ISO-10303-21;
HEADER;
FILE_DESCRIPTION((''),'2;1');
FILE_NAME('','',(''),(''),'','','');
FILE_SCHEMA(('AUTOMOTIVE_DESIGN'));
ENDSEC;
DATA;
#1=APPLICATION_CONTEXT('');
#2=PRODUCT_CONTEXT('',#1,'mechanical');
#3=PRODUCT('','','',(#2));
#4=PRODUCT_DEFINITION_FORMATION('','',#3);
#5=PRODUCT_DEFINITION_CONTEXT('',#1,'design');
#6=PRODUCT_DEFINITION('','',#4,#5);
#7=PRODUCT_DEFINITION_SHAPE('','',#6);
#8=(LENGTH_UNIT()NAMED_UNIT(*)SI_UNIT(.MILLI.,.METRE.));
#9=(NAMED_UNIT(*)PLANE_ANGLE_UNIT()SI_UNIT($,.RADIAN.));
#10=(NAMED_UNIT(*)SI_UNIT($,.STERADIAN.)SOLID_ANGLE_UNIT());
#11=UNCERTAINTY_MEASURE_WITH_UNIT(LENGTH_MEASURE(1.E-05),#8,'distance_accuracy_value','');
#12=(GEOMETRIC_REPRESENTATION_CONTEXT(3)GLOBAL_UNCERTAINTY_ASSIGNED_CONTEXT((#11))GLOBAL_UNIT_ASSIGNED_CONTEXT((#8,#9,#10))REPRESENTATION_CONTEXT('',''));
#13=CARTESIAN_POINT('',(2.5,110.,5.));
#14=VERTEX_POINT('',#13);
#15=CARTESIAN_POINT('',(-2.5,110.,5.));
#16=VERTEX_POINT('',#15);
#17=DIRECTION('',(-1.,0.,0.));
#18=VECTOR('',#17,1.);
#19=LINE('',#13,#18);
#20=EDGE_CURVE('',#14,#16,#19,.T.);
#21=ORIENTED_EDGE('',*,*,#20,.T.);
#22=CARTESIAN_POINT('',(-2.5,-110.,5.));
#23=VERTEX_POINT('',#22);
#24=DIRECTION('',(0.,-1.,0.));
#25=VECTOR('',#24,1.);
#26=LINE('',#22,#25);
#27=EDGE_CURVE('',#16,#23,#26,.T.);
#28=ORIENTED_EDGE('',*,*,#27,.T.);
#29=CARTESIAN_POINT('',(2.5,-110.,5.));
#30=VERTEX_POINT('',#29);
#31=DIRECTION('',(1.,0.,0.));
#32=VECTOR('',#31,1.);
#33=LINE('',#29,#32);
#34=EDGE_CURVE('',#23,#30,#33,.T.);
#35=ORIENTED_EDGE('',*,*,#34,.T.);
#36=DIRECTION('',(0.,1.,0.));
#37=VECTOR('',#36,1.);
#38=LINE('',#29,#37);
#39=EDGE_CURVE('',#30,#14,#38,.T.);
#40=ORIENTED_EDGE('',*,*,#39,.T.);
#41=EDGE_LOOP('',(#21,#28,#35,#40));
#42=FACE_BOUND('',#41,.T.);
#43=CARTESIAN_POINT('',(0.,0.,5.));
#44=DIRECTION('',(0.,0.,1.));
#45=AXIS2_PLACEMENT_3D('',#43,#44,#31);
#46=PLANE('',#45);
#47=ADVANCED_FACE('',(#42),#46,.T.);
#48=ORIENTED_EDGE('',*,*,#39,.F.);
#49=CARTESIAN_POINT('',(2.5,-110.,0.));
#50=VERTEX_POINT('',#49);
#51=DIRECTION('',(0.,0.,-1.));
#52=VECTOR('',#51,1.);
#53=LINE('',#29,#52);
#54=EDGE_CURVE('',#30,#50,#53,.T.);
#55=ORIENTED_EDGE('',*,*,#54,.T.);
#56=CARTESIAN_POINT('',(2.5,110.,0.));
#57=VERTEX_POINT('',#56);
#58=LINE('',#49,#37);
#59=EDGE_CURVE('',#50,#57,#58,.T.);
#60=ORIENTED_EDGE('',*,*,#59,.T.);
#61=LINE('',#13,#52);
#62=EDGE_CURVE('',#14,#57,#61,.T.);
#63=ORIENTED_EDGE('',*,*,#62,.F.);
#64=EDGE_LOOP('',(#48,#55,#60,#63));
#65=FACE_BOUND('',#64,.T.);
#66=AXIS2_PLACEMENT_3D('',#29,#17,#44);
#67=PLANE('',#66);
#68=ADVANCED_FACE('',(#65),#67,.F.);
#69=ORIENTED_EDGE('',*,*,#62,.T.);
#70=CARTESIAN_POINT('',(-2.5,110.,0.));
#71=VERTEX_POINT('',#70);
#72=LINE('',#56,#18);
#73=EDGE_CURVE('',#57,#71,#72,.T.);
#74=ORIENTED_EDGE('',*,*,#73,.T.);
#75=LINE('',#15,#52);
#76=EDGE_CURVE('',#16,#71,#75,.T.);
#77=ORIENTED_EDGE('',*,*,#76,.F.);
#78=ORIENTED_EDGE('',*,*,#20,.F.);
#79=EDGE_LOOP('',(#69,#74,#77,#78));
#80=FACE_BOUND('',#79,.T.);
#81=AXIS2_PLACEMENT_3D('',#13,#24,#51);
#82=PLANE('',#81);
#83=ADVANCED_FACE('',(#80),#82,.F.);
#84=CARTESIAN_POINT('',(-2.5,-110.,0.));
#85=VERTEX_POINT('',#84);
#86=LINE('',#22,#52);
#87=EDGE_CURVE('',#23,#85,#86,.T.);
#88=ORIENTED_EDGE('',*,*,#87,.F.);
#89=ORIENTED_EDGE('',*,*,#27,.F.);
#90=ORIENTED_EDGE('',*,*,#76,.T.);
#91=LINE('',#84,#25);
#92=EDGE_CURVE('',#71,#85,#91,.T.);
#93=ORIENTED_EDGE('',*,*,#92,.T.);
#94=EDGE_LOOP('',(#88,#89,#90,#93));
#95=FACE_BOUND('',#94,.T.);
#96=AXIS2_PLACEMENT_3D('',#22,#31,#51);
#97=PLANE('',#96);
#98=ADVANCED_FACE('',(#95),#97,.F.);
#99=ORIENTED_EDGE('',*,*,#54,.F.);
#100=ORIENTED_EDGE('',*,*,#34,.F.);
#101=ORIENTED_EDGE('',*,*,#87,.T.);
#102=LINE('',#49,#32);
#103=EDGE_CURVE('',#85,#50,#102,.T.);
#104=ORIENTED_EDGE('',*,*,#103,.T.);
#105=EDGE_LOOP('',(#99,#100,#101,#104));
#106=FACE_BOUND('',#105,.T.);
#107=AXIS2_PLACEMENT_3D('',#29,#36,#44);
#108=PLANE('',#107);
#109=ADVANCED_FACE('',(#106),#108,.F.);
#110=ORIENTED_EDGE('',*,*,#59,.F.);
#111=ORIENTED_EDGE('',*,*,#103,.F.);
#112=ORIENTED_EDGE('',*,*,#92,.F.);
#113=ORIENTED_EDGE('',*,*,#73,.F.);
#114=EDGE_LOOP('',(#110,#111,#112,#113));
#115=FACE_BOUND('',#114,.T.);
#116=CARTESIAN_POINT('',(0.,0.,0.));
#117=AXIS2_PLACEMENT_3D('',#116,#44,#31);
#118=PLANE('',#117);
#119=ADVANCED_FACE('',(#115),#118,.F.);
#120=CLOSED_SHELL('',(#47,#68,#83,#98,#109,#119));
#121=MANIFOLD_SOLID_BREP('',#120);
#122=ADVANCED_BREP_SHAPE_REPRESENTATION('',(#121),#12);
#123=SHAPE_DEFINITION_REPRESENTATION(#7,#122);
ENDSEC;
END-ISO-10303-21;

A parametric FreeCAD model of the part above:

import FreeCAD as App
import Part
import Sketcher
Q = App.Units.Quantity

doc = App.newDocument("Part")
body = doc.addObject("PartDesign::Body", "Body")

# Sketch on XY plane
sketch1 = body.newObject("Sketcher::SketchObject", "Sketch")
sketch1.AttachmentSupport = (doc.getObject("XY_Plane"), [""])
sketch1.MapMode = "FlatFace"
sketch1.addGeometry([
    Part.LineSegment(App.Vector(-2, 110, 0), App.Vector(-2, -110, 0)),
    Part.LineSegment(App.Vector(-2, -110, 0), App.Vector(2, -110, 0)),
    Part.LineSegment(App.Vector(2, -110, 0), App.Vector(2, 110, 0)),
    Part.LineSegment(App.Vector(2, 110, 0), App.Vector(-2, 110, 0)),
], False)
sketch1.addConstraint([
    Sketcher.Constraint("Coincident", 0, 2, 1, 1),
    Sketcher.Constraint("Coincident", 1, 2, 2, 1),
    Sketcher.Constraint("Coincident", 2, 2, 3, 1),
    Sketcher.Constraint("Coincident", 3, 2, 0, 1),
    Sketcher.Constraint("Vertical", 0),
    Sketcher.Constraint("Horizontal", 1),
    Sketcher.Constraint("Vertical", 2),
    Sketcher.Constraint("Horizontal", 3),
    Sketcher.Constraint("Symmetric", 0, 2, 2, 2, -1, 1),
    Sketcher.Constraint("DistanceX", 1, 1, 1, 2, Q("5 mm")),
    Sketcher.Constraint("DistanceY", 0, 2, 0, 1, Q("220 mm")),
])
pad1 = body.newObject("PartDesign::Pad", "Pad")
pad1.Profile = sketch1
pad1.Length = 5

doc.recompute()
